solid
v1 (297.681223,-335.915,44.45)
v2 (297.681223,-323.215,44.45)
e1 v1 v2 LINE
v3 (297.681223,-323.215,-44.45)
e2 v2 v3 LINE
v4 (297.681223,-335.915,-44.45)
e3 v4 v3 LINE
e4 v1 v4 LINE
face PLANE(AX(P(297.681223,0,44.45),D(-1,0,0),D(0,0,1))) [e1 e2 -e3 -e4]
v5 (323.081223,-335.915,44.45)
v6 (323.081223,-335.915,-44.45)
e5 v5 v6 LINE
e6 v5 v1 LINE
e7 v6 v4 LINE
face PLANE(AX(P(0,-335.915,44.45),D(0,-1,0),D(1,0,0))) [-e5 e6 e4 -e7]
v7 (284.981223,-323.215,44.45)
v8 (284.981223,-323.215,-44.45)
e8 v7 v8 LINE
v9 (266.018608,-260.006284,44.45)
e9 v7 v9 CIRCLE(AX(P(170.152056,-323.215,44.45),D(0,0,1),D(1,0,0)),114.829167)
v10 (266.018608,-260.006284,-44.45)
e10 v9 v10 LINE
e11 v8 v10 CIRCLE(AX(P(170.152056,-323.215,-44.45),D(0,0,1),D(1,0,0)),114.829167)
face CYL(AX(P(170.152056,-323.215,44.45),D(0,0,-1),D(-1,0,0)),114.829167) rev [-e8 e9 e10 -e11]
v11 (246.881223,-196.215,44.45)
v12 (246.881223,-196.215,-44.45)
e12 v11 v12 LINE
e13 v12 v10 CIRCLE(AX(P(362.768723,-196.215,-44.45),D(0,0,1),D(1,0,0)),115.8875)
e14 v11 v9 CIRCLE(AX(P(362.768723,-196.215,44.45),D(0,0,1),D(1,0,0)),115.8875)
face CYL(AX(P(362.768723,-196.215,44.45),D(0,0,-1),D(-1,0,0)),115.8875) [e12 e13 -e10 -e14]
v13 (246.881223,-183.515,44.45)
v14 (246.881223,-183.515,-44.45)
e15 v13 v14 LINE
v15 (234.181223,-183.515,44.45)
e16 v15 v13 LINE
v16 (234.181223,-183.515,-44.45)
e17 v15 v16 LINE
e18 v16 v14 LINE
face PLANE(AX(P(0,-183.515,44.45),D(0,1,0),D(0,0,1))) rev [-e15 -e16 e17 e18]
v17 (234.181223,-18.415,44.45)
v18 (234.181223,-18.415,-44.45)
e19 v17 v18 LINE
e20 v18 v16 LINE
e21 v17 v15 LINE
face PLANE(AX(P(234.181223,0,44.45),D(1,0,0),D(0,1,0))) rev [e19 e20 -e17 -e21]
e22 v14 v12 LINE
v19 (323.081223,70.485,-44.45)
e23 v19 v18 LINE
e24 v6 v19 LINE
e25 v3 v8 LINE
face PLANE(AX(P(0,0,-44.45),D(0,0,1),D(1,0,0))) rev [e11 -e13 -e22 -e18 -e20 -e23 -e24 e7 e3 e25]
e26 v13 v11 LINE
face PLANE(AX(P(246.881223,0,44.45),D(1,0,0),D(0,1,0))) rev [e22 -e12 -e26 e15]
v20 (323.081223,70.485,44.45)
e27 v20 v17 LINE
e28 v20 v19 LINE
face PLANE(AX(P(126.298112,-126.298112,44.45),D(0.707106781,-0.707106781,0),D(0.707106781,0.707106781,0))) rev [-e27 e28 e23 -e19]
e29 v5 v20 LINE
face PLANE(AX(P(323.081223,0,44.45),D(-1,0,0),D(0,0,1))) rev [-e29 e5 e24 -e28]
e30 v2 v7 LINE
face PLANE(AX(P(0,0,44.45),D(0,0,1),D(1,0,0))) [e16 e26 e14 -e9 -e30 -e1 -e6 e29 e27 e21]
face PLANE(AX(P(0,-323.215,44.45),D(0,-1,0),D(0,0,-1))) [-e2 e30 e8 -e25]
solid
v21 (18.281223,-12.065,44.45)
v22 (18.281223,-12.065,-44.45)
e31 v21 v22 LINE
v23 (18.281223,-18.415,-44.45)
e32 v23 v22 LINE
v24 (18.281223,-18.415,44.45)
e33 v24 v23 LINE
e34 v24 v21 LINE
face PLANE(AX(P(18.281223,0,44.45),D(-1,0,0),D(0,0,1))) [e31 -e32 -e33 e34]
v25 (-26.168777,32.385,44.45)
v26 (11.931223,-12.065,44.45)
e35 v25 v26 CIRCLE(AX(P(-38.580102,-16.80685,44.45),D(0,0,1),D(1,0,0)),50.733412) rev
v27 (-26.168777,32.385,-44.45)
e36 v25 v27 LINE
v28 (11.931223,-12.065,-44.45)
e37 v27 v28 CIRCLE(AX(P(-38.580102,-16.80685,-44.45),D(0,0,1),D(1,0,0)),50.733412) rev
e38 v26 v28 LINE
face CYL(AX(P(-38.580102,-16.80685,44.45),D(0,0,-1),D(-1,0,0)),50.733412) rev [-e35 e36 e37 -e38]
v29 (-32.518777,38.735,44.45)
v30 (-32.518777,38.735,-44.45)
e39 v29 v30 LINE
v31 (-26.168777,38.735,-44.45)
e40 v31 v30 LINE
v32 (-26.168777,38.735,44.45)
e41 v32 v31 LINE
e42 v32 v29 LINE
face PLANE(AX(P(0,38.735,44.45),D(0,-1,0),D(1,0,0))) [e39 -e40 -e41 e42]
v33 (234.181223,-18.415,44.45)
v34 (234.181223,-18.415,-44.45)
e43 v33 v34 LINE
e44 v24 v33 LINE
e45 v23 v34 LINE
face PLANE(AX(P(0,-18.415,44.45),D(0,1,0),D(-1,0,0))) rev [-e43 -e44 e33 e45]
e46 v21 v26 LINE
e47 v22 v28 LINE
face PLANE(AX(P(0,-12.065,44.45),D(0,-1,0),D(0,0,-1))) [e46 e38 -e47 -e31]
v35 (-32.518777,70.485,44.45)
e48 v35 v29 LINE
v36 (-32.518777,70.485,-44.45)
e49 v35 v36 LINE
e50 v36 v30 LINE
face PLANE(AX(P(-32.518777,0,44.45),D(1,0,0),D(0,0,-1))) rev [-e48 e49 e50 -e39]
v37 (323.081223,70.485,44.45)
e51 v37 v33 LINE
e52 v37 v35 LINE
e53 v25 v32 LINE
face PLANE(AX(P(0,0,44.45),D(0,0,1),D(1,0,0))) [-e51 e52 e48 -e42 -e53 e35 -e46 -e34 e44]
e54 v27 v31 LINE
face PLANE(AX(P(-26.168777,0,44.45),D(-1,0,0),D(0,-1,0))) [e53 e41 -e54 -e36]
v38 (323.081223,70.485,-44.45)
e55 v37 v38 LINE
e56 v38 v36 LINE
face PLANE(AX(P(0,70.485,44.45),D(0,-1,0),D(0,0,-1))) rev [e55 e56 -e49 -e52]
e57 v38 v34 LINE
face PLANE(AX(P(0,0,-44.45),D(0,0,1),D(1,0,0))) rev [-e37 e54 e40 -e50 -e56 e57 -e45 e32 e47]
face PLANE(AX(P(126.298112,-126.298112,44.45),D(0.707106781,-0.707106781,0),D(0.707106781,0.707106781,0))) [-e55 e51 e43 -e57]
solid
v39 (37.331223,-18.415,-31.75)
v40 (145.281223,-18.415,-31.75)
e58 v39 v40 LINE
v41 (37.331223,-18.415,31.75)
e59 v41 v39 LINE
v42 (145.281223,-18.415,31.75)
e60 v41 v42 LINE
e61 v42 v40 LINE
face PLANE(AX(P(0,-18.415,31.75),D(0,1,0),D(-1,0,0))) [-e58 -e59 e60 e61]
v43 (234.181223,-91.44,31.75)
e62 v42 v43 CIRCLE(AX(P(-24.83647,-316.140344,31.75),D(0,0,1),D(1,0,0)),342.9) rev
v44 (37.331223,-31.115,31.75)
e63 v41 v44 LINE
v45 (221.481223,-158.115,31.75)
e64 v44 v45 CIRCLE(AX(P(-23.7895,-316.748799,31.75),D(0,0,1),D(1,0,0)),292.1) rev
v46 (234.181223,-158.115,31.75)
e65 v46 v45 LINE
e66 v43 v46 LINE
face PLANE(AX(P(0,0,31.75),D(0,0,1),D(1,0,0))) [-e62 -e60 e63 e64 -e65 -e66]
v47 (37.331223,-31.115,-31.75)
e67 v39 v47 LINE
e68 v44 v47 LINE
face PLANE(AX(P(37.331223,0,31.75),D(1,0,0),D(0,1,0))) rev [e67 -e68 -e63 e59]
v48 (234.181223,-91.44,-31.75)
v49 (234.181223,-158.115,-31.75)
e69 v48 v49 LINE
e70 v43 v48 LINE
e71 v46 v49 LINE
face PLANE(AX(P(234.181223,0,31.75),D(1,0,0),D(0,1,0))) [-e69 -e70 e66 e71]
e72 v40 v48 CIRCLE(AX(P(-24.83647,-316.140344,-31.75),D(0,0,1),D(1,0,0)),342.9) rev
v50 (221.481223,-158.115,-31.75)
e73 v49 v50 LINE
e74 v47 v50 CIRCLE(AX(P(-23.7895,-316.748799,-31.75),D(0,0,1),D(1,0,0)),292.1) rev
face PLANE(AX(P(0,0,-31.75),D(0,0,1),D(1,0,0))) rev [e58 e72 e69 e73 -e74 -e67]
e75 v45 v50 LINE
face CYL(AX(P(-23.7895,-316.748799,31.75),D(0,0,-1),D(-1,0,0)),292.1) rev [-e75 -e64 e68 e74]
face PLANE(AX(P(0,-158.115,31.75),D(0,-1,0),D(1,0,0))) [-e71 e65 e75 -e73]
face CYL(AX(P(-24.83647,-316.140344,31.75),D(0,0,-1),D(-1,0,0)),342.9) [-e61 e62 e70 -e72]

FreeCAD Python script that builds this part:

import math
import FreeCAD as App
import Part
import Sketcher

V = App.Vector
Q = App.Units.Quantity

doc = App.newDocument("Part")
body = doc.addObject("PartDesign::Body", "Body")

sketch1 = doc.addObject("Sketcher::SketchObject", "Sketch")
body.addObject(sketch1)
sketch1.AttachmentSupport = (doc.XY_Plane, [""])
sketch1.MapMode = "FlatFace"
sketch1.addGeometry([
    Part.LineSegment(V(-26.168777, 38.735, 0), V(-26.168777, 32.385, 0)),
    Part.ArcOfCircle(Part.Circle(V(-38.580102, -16.80685, 0), V(0, 0, 1), 50.733412), math.radians(5.363036), math.radians(75.839553)),
    Part.LineSegment(V(11.931223, -12.065, 0), V(18.281223, -12.065, 0)),
    Part.LineSegment(V(18.281223, -12.065, 0), V(18.281223, -18.415, 0)),
    Part.LineSegment(V(18.281223, -18.415, 0), V(234.181223, -18.415, 0)),
    Part.LineSegment(V(234.181223, -18.415, 0), V(323.081223, 70.485, 0)),
    Part.LineSegment(V(323.081223, 70.485, 0), V(-32.518777, 70.485, 0)),
    Part.LineSegment(V(-32.518777, 70.485, 0), V(-32.518777, 38.735, 0)),
    Part.LineSegment(V(-32.518777, 38.735, 0), V(-26.168777, 38.735, 0)),
], False)
sketch1.addConstraint([
    Sketcher.Constraint("Coincident", 0, 2, 1, 2),
    Sketcher.Constraint("Coincident", 1, 1, 2, 1),
    Sketcher.Constraint("Coincident", 2, 2, 3, 1),
    Sketcher.Constraint("Coincident", 3, 2, 4, 1),
    Sketcher.Constraint("Coincident", 4, 2, 5, 1),
    Sketcher.Constraint("Coincident", 5, 2, 6, 1),
    Sketcher.Constraint("Coincident", 6, 2, 7, 1),
    Sketcher.Constraint("Coincident", 7, 2, 8, 1),
    Sketcher.Constraint("Coincident", 8, 2, 0, 1),
    Sketcher.Constraint("Vertical", 0),
    Sketcher.Constraint("Horizontal", 2),
    Sketcher.Constraint("Vertical", 3),
    Sketcher.Constraint("Horizontal", 4),
    Sketcher.Constraint("Horizontal", 6),
    Sketcher.Constraint("Vertical", 7),
    Sketcher.Constraint("Horizontal", 8),
    Sketcher.Constraint("Equal", 2, 8),
    Sketcher.Constraint("Equal", 8, 0),
    Sketcher.Constraint("Equal", 0, 3),
    Sketcher.Constraint("DistanceX", 6, 2, 6, 1, Q("14 in")),
    Sketcher.Constraint("DistanceX", 4, 1, 4, 2, Q("8.5 in")),
    Sketcher.Constraint("Angle", 5, Q("45 deg")),
    Sketcher.Constraint("DistanceY", 3, 2, 0, 2, Q("2 in")),
    Sketcher.Constraint("DistanceX", 2, 2, 5, 2, Q("12 in")),
    Sketcher.Constraint("DistanceX", 2, 1, 2, 2, Q("0.25 in")),
    Sketcher.Constraint("DistanceY", -1, 1, 0, 2, Q("1.275 in")),
    Sketcher.Constraint("Radius", 1, 50.733412),
    Sketcher.Constraint("DistanceX", 1, 3, -1, 1, 38.580102),
])
pad1 = doc.addObject("PartDesign::Pad", "Pad")
body.addObject(pad1)
pad1.Profile = sketch1
pad1.Length = Q("3.5 in")
pad1.Midplane = True
body2 = doc.addObject("PartDesign::Body", "Body001")

sketch2 = doc.addObject("Sketcher::SketchObject", "Sketch001")
body2.addObject(sketch2)
sketch2.AttachmentSupport = (doc.getObject("XY_Plane001"), [""])
sketch2.MapMode = "FlatFace"
sketch2.addGeometry([
    Part.ArcOfCircle(Part.Circle(V(-24.83647, -316.140344, 0), V(0, 0, 1), 342.9), math.radians(40.941953), math.radians(60.256725)),
    Part.LineSegment(V(145.281223, -18.415, 0), V(37.331223, -18.415, 0)),
    Part.LineSegment(V(37.331223, -18.415, 0), V(37.331223, -31.115, 0)),
    Part.ArcOfCircle(Part.Circle(V(-23.7895, -316.748799, 0), V(0, 0, 1), 292.1), math.radians(32.893586), math.radians(77.921837)),
    Part.LineSegment(V(221.481223, -158.115, 0), V(234.181223, -158.115, 0)),
    Part.LineSegment(V(234.181223, -158.115, 0), V(234.181223, -91.44, 0)),
], False)
sketch2.addConstraint([
    Sketcher.Constraint("Coincident", 0, 2, 1, 1),
    Sketcher.Constraint("Coincident", 1, 2, 2, 1),
    Sketcher.Constraint("Coincident", 2, 2, 3, 2),
    Sketcher.Constraint("Coincident", 3, 1, 4, 1),
    Sketcher.Constraint("Coincident", 4, 2, 5, 1),
    Sketcher.Constraint("Coincident", 5, 2, 0, 1),
    Sketcher.Constraint("Horizontal", 1),
    Sketcher.Constraint("Vertical", 2),
    Sketcher.Constraint("Horizontal", 4),
    Sketcher.Constraint("Vertical", 5),
    Sketcher.Constraint("Equal", 4, 2),
    Sketcher.Constraint("Radius", 0, Q("13.5 in")),
    Sketcher.Constraint("Radius", 3, Q("11.5 in")),
    Sketcher.Constraint("DistanceX", 4, 1, 4, 2, Q("0.5 in")),
    Sketcher.Constraint("DistanceX", 0, 2, 3, 1, Q("3 in")),
    Sketcher.Constraint("DistanceY", 3, 1, 2, 2, Q("5 in")),
    Sketcher.Constraint("DistanceX", 1, 2, 1, 1, Q("4.25 in")),
    Sketcher.Constraint("DistanceY", 5, 2, -1, 1, Q("3.6 in")),
    Sketcher.Constraint("DistanceY", 5, 1, 5, 2, Q("2.625 in")),
    Sketcher.Constraint("DistanceX", 3, 3, -1, 1, 23.7895),
])
pad2 = doc.addObject("PartDesign::Pad", "Pad001")
body2.addObject(pad2)
pad2.Profile = sketch2
pad2.Length = Q("2.5 in")
pad2.Midplane = True
body3 = doc.addObject("PartDesign::Body", "Body002")

sketch3 = doc.addObject("Sketcher::SketchObject", "Sketch002")
body3.addObject(sketch3)
sketch3.AttachmentSupport = (doc.getObject("XY_Plane002"), [""])
sketch3.MapMode = "FlatFace"
sketch3.addGeometry([
    Part.LineSegment(V(323.081223, -335.915, 0), V(323.081223, 70.485, 0)),
    Part.LineSegment(V(323.081223, 70.485, 0), V(234.181223, -18.415, 0)),
    Part.LineSegment(V(234.181223, -18.415, 0), V(234.181223, -183.515, 0)),
    Part.LineSegment(V(234.181223, -183.515, 0), V(246.881223, -183.515, 0)),
    Part.LineSegment(V(246.881223, -183.515, 0), V(246.881223, -196.215, 0)),
    Part.ArcOfCircle(Part.Circle(V(362.768723, -196.215, 0), V(0, 0, 1), 115.8875), math.radians(180), math.radians(213.398488)),
    Part.ArcOfCircle(Part.Circle(V(170.152056, -323.215, 0), V(0, 0, 1), 114.829167), math.radians(0), math.radians(33.398488)),
    Part.LineSegment(V(284.981223, -323.215, 0), V(297.681223, -323.215, 0)),
    Part.LineSegment(V(297.681223, -323.215, 0), V(297.681223, -335.915, 0)),
    Part.LineSegment(V(297.681223, -335.915, 0), V(323.081223, -335.915, 0)),
], False)
sketch3.addConstraint([
    Sketcher.Constraint("Coincident", 0, 2, 1, 1),
    Sketcher.Constraint("Coincident", 1, 2, 2, 1),
    Sketcher.Constraint("Coincident", 2, 2, 3, 1),
    Sketcher.Constraint("Coincident", 3, 2, 4, 1),
    Sketcher.Constraint("Tangent", 4, 2, 5, 1),
    Sketcher.Constraint("Tangent", 5, 2, 6, 2),
    Sketcher.Constraint("Coincident", 6, 1, 7, 1),
    Sketcher.Constraint("Coincident", 7, 2, 8, 1),
    Sketcher.Constraint("Coincident", 8, 2, 9, 1),
    Sketcher.Constraint("Coincident", 9, 2, 0, 1),
    Sketcher.Constraint("Vertical", 0),
    Sketcher.Constraint("Vertical", 2),
    Sketcher.Constraint("Horizontal", 3),
    Sketcher.Constraint("Vertical", 4),
    Sketcher.Constraint("Horizontal", 7),
    Sketcher.Constraint("Vertical", 8),
    Sketcher.Constraint("Horizontal", 9),
    Sketcher.Constraint("Equal", 3, 7),
    Sketcher.Constraint("Equal", 7, 4),
    Sketcher.Constraint("Equal", 4, 8),
    Sketcher.Constraint("DistanceX", 9, 1, 9, 2, Q("1 in")),
    Sketcher.Constraint("DistanceY", 0, 1, 0, 2, Q("16 in")),
    Sketcher.Constraint("DistanceX", 3, 1, 3, 2, Q("0.5 in")),
    Sketcher.Constraint("DistanceY", 2, 2, 2, 1, Q("6.5 in")),
    Sketcher.Constraint("Angle", 1, Q("-135 deg")),
    Sketcher.Constraint("Radius", 5, Q("4.5625 in")),
    Sketcher.Constraint("DistanceY", 6, 3, 5, 3, Q("5 in")),
    Sketcher.Constraint("DistanceY", 2, 2, 0, 2, Q("10 in")),
    Sketcher.Constraint("DistanceY", 5, 3, -1, 1, Q("7.725 in")),
    Sketcher.Constraint("DistanceX", -1, 1, 6, 3, Q("6.6988999 in")),
])
pad3 = doc.addObject("PartDesign::Pad", "Pad002")
body3.addObject(pad3)
pad3.Profile = sketch3
pad3.Length = Q("3.5 in")
pad3.Midplane = True

doc.recompute()
